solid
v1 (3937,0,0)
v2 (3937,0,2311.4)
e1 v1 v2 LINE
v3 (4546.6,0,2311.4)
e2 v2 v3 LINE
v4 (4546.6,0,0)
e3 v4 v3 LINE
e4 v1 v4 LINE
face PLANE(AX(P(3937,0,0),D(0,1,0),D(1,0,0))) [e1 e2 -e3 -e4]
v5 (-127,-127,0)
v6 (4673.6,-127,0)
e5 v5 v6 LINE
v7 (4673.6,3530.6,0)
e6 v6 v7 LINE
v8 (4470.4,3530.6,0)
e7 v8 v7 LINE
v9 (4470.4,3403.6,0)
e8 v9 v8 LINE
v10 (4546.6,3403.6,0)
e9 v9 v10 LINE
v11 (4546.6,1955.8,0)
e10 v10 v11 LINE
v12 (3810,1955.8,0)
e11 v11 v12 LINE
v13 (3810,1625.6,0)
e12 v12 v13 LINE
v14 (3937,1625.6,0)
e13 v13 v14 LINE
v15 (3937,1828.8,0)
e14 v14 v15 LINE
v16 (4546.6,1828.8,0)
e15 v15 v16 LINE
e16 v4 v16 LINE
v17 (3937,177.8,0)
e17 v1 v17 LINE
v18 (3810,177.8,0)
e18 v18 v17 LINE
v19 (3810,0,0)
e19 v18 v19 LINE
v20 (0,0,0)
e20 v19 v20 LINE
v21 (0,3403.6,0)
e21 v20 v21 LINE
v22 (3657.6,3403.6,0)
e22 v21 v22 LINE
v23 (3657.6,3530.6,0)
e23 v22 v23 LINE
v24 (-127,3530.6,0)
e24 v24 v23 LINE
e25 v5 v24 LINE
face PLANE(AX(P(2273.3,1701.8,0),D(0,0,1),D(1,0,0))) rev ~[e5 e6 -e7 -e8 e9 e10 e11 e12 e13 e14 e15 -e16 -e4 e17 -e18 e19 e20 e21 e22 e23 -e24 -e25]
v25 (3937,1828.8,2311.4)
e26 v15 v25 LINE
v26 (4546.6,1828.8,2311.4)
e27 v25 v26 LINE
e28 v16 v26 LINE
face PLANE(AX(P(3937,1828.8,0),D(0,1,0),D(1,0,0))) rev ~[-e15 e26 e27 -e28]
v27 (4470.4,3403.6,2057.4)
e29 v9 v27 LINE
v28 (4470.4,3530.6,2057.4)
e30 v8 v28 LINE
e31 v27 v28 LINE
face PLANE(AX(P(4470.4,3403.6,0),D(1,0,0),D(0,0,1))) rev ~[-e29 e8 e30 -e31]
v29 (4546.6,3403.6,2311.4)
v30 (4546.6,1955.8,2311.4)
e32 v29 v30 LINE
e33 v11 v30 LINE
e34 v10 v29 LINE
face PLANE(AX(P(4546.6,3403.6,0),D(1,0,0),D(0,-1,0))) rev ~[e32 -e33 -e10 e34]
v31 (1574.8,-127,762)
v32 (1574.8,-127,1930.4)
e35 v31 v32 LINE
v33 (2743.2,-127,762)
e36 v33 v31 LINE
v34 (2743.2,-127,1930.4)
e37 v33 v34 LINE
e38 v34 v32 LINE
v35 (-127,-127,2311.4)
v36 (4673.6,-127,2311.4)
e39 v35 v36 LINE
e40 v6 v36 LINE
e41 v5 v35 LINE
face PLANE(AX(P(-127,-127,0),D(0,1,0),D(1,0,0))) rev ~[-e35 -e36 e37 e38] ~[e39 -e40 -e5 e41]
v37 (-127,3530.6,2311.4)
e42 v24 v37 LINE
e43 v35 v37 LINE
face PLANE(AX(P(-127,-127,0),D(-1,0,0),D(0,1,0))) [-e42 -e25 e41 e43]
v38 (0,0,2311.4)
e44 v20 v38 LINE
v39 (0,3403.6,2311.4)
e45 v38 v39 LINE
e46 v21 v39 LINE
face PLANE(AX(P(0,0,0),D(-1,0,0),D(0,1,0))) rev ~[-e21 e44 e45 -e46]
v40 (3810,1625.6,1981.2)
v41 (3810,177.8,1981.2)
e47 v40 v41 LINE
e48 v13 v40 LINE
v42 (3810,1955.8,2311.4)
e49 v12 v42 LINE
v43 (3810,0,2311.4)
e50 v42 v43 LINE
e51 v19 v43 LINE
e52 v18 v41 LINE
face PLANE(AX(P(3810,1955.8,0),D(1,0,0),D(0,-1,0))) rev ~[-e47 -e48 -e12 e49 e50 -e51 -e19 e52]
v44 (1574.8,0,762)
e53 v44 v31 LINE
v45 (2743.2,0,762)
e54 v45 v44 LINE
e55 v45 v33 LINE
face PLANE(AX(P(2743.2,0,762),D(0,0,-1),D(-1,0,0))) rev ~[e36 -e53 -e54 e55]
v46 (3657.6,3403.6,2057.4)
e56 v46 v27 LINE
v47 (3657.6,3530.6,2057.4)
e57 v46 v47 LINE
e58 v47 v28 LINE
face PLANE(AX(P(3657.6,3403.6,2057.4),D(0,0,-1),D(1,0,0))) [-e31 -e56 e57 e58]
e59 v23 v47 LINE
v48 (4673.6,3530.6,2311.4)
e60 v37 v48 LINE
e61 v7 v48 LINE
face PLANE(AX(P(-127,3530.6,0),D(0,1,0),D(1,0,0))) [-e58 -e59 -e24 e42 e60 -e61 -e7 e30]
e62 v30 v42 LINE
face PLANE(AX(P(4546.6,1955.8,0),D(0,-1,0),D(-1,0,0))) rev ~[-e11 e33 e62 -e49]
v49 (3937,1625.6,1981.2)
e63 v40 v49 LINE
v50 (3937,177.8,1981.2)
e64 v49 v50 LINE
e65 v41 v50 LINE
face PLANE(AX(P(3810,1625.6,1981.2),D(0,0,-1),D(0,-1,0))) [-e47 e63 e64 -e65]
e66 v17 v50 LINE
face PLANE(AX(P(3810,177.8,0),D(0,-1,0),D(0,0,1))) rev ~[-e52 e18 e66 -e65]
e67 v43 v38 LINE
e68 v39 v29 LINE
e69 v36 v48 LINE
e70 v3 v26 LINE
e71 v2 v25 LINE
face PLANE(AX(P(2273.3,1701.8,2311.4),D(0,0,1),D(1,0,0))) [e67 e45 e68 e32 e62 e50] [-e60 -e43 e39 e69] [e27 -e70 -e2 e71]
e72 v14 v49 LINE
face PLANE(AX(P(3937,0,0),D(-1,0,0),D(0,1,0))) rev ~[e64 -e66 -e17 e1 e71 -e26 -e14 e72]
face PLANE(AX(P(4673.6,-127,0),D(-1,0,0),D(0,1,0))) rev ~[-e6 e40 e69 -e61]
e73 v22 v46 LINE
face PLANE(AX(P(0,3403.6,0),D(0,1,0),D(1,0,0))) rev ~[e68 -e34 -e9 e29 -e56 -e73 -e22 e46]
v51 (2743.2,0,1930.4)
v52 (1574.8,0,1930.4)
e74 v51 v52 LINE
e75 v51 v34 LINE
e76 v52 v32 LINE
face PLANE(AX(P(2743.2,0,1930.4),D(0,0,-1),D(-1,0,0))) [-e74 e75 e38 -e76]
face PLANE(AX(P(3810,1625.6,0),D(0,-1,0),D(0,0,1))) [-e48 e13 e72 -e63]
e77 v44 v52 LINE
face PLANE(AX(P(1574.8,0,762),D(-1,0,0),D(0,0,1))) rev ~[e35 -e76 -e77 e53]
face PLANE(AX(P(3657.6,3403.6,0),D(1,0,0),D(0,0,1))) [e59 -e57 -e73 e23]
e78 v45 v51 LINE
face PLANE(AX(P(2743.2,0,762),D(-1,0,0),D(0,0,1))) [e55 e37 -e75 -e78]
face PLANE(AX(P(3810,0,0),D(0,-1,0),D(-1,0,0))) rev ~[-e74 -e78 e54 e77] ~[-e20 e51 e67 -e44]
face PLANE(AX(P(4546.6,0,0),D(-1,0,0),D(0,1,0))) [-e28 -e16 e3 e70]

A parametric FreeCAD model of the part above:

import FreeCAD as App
import Part
import Sketcher
from FreeCAD import Vector
Q = App.Units.Quantity

doc = App.newDocument("Part")
body = doc.addObject("PartDesign::Body", "Body")

# Sketch on XY plane
sketch1 = body.newObject("Sketcher::SketchObject", "Sketch")
sketch1.AttachmentSupport = (doc.getObject("XY_Plane"), [""])
sketch1.MapMode = "FlatFace"
sketch1.addGeometry([
    Part.LineSegment(Vector(-127, 3531, 0), Vector(-127, -127, 0)),  # 0
    Part.LineSegment(Vector(-127, -127, 0), Vector(4674, -127, 0)),  # 1
    Part.LineSegment(Vector(4674, -127, 0), Vector(4674, 3531, 0)),  # 2
    Part.LineSegment(Vector(4674, 3531, 0), Vector(-127, 3531, 0)),  # 3
    Part.LineSegment(Vector(4547, 0, 0), Vector(3937, 0, 0)),  # 4
    Part.LineSegment(Vector(3937, 0, 0), Vector(3937, 1829, 0)),  # 5
    Part.LineSegment(Vector(3937, 1829, 0), Vector(4547, 1829, 0)),  # 6
    Part.LineSegment(Vector(4547, 1829, 0), Vector(4547, 0, 0)),  # 7
    Part.LineSegment(Vector(3810, 0, 0), Vector(0, 0, 0)),  # 8
    Part.LineSegment(Vector(0, 0, 0), Vector(0, 3404, 0)),  # 9
    Part.LineSegment(Vector(0, 3404, 0), Vector(4547, 3404, 0)),  # 10
    Part.LineSegment(Vector(4547, 3404, 0), Vector(4547, 1956, 0)),  # 11
    Part.LineSegment(Vector(4547, 1956, 0), Vector(3810, 1956, 0)),  # 12
    Part.LineSegment(Vector(3810, 1956, 0), Vector(3810, 0, 0)),  # 13
], False)
sketch1.addConstraint([
    Sketcher.Constraint("Coincident", 0, 2, 1, 1),
    Sketcher.Constraint("Coincident", 1, 2, 2, 1),
    Sketcher.Constraint("Coincident", 2, 2, 3, 1),
    Sketcher.Constraint("Coincident", 3, 2, 0, 1),
    Sketcher.Constraint("Coincident", 4, 2, 5, 1),
    Sketcher.Constraint("Coincident", 5, 2, 6, 1),
    Sketcher.Constraint("Coincident", 6, 2, 7, 1),
    Sketcher.Constraint("Coincident", 7, 2, 4, 1),
    Sketcher.Constraint("Coincident", 8, 2, 9, 1),
    Sketcher.Constraint("Coincident", 9, 2, 10, 1),
    Sketcher.Constraint("Coincident", 10, 2, 11, 1),
    Sketcher.Constraint("Coincident", 11, 2, 12, 1),
    Sketcher.Constraint("Coincident", 12, 2, 13, 1),
    Sketcher.Constraint("Coincident", 13, 2, 8, 1),
    Sketcher.Constraint("Vertical", 0),
    Sketcher.Constraint("Horizontal", 1),
    Sketcher.Constraint("Vertical", 2),
    Sketcher.Constraint("Horizontal", 3),
    Sketcher.Constraint("Horizontal", 4),
    Sketcher.Constraint("Vertical", 5),
    Sketcher.Constraint("Horizontal", 6),
    Sketcher.Constraint("Vertical", 7),
    Sketcher.Constraint("Horizontal", 8),
    Sketcher.Constraint("Vertical", 9),
    Sketcher.Constraint("Horizontal", 10),
    Sketcher.Constraint("Vertical", 11),
    Sketcher.Constraint("Horizontal", 12),
    Sketcher.Constraint("Vertical", 13),
    Sketcher.Constraint("Coincident", 8, 2, -1, 1),
    Sketcher.Constraint("PointOnObject", 4, 2, -1),
    Sketcher.Constraint("Vertical", 7, 2, 10, 2),
    Sketcher.Constraint("DistanceX", 1, 1, 1, 2, Q("189 in")),
    Sketcher.Constraint("DistanceX", 4, 2, 4, 1, Q("24 in")),
    Sketcher.Constraint("DistanceX", 8, 2, 8, 1, Q("150 in")),
    Sketcher.Constraint("DistanceX", 10, 1, 10, 2, Q("179 in")),
    Sketcher.Constraint("DistanceY", 0, 2, 0, 1, Q("144 in")),
    Sketcher.Constraint("DistanceY", 5, 1, 5, 2, Q("72 in")),
    Sketcher.Constraint("DistanceY", 9, 1, 9, 2, Q("134 in")),
    Sketcher.Constraint("DistanceY", 11, 2, 11, 1, Q("57 in")),
    Sketcher.Constraint("DistanceX", 0, 2, -1, 1, Q("5 in")),
    Sketcher.Constraint("DistanceY", 0, 2, -1, 1, Q("5 in")),
])
pad1 = body.newObject("PartDesign::Pad", "Pad")
pad1.Profile = sketch1
pad1.Length = Q("91 in")

# Sketch on XZ plane
sketch2 = body.newObject("Sketcher::SketchObject", "Sketch001")
sketch2.AttachmentSupport = (doc.getObject("XZ_Plane"), [""])
sketch2.MapMode = "FlatFace"
sketch2.addGeometry([
    Part.LineSegment(Vector(2743, 1930, 0), Vector(2743, 762, 0)),
    Part.LineSegment(Vector(2743, 762, 0), Vector(1575, 762, 0)),
    Part.LineSegment(Vector(1575, 762, 0), Vector(1575, 1930, 0)),
    Part.LineSegment(Vector(1575, 1930, 0), Vector(2743, 1930, 0)),
], False)
sketch2.addConstraint([
    Sketcher.Constraint("Coincident", 0, 2, 1, 1),
    Sketcher.Constraint("Coincident", 1, 2, 2, 1),
    Sketcher.Constraint("Coincident", 2, 2, 3, 1),
    Sketcher.Constraint("Coincident", 3, 2, 0, 1),
    Sketcher.Constraint("Vertical", 0),
    Sketcher.Constraint("Horizontal", 1),
    Sketcher.Constraint("Vertical", 2),
    Sketcher.Constraint("Horizontal", 3),
    Sketcher.Constraint("Equal", 3, 0),
    Sketcher.Constraint("DistanceX", 1, 2, 1, 1, Q("46 in")),
    Sketcher.Constraint("DistanceX", -1, 1, 0, 2, Q("108 in")),
    Sketcher.Constraint("DistanceY", -1, 1, 0, 2, Q("30 in")),
])
pocket1 = body.newObject("PartDesign::Pocket", "Pocket")
pocket1.Profile = sketch2
pocket1.Type = "ThroughAll"
pocket1.Reversed = True

# Sketch on XZ plane
sketch3 = body.newObject("Sketcher::SketchObject", "Sketch002")
sketch3.AttachmentSupport = (doc.getObject("XZ_Plane"), [""])
sketch3.MapMode = "FlatFace"
sketch3.AttachmentOffset = App.Placement(Vector(0, 0, -134 * 25.4), App.Rotation())
sketch3.addGeometry([
    Part.LineSegment(Vector(3658, 2057, 0), Vector(3658, 0, 0)),
    Part.LineSegment(Vector(3658, 0, 0), Vector(4470, 0, 0)),
    Part.LineSegment(Vector(4470, 0, 0), Vector(4470, 2057, 0)),
    Part.LineSegment(Vector(4470, 2057, 0), Vector(3658, 2057, 0)),
], False)
sketch3.addConstraint([
    Sketcher.Constraint("Coincident", 0, 2, 1, 1),
    Sketcher.Constraint("Coincident", 1, 2, 2, 1),
    Sketcher.Constraint("Coincident", 2, 2, 3, 1),
    Sketcher.Constraint("Coincident", 3, 2, 0, 1),
    Sketcher.Constraint("Vertical", 0),
    Sketcher.Constraint("Horizontal", 1),
    Sketcher.Constraint("Vertical", 2),
    Sketcher.Constraint("Horizontal", 3),
    Sketcher.Constraint("PointOnObject", 0, 2, -1),
    Sketcher.Constraint("DistanceX", 1, 1, 1, 2, Q("32 in")),
    Sketcher.Constraint("DistanceY", 0, 2, 0, 1, Q("81 in")),
    Sketcher.Constraint("DistanceX", -1, 1, 0, 2, Q("144 in")),
])
pocket2 = body.newObject("PartDesign::Pocket", "Pocket001")
pocket2.Profile = sketch3
pocket2.Type = "ThroughAll"

# Sketch on YZ plane
sketch4 = body.newObject("Sketcher::SketchObject", "Sketch003")
sketch4.AttachmentSupport = (doc.getObject("YZ_Plane"), [""])
sketch4.MapMode = "FlatFace"
sketch4.AttachmentOffset = App.Placement(Vector(0, 0, 150 * 25.4), App.Rotation())
sketch4.addGeometry([
    Part.LineSegment(Vector(1626, 1981, 0), Vector(1626, 0, 0)),
    Part.LineSegment(Vector(1626, 0, 0), Vector(178, 0, 0)),
    Part.LineSegment(Vector(178, 0, 0), Vector(178, 1981, 0)),
    Part.LineSegment(Vector(178, 1981, 0), Vector(1626, 1981, 0)),
], False)
sketch4.addConstraint([
    Sketcher.Constraint("Coincident", 0, 2, 1, 1),
    Sketcher.Constraint("Coincident", 1, 2, 2, 1),
    Sketcher.Constraint("Coincident", 2, 2, 3, 1),
    Sketcher.Constraint("Coincident", 3, 2, 0, 1),
    Sketcher.Constraint("Vertical", 0),
    Sketcher.Constraint("Horizontal", 1),
    Sketcher.Constraint("Vertical", 2),
    Sketcher.Constraint("Horizontal", 3),
    Sketcher.Constraint("PointOnObject", 0, 2, -1),
    Sketcher.Constraint("DistanceX", 1, 2, 1, 1, Q("57 in")),
    Sketcher.Constraint("DistanceY", 0, 2, 0, 1, Q("78 in")),
    Sketcher.Constraint("DistanceX", -1, 1, 0, 2, Q("64 in")),
])
pocket3 = body.newObject("PartDesign::Pocket", "Pocket002")
pocket3.Profile = sketch4
pocket3.Length = Q("5 in")
pocket3.Reversed = True

doc.recompute()
